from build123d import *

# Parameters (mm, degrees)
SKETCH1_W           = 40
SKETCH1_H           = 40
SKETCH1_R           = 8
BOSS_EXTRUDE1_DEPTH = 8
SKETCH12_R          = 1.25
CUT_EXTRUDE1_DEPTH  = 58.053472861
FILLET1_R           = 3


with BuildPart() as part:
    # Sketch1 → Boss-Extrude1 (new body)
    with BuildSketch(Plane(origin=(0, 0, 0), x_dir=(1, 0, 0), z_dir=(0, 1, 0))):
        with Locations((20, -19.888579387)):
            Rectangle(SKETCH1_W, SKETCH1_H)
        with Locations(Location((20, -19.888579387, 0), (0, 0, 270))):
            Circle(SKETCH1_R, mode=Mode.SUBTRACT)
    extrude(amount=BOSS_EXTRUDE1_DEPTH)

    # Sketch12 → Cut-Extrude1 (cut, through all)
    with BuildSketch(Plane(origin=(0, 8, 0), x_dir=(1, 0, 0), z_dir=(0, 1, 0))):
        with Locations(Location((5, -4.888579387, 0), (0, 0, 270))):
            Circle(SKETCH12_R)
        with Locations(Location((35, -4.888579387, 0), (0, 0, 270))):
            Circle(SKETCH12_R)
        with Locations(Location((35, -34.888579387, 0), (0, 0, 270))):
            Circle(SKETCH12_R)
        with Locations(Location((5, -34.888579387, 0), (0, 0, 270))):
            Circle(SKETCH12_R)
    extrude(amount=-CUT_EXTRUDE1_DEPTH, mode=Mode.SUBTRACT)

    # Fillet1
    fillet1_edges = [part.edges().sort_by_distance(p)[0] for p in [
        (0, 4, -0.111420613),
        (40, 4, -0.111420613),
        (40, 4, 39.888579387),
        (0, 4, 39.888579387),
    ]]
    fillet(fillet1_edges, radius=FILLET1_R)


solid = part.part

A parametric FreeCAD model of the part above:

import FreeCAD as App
import Part
import Sketcher

V = App.Vector


def edges_at(feature, points):
    """Names of the edges that pass closest to the given points."""
    edges = feature.Shape.Edges
    near = lambda p: min(range(len(edges)), key=lambda i: edges[i].distToShape(Part.Vertex(*p))[0])
    return sorted({f"Edge{near(p) + 1}" for p in points})


def add_polygon(sketch, points):
    """Adds a closed chain of lines whose ends are joined by coincident constraints."""
    first, n = sketch.GeometryCount, len(points)
    for a, b in zip(points, points[1:] + points[:1]):
        sketch.addGeometry(Part.LineSegment(App.Vector(*a, 0), App.Vector(*b, 0)), False)
    for i in range(n):
        sketch.addConstraint(Sketcher.Constraint("Coincident", first + i, 2, first + (i + 1) % n, 1))

doc = App.newDocument("Part")
body = doc.addObject("PartDesign::Body", "Body")

# Sketch on XZ plane
sketch1 = doc.addObject("Sketcher::SketchObject", "Sketch")
body.addObject(sketch1)
sketch1.AttachmentSupport = (doc.XZ_Plane, [""])
sketch1.MapMode = "FlatFace"
add_polygon(sketch1, [(0, 0), (0, 40), (40, 40), (40, 0)])  # lines 0-3
sketch1.addGeometry(Part.Circle(V(20, 20, 0), V(0, 0, 1), 8), False)  # 4
sketch1.addConstraint([
    Sketcher.Constraint("Vertical", 0),
    Sketcher.Constraint("Horizontal", 1),
    Sketcher.Constraint("Vertical", 2),
    Sketcher.Constraint("Horizontal", 3),
    Sketcher.Constraint("PointOnObject", 0, 2, -2),
    Sketcher.Constraint("Equal", 3, 0),
    Sketcher.Constraint("Diameter", 4, 16.0),
    Sketcher.Constraint("DistanceX", 1, 1, 1, 2, 40.0),
    Sketcher.Constraint("DistanceX", -1, 1, 4, 3, 20.0),
    Sketcher.Constraint("DistanceY", 4, 3, 0, 2, 20.0),
    Sketcher.Constraint("DistanceY", -1, 1, 4, 3, 19.888579),
])
pad1 = doc.addObject("PartDesign::Pad", "Pad")
body.addObject(pad1)
pad1.Profile = sketch1
pad1.Length = 8
pad1.Reversed = True

# Sketch on XZ plane
sketch2 = doc.addObject("Sketcher::SketchObject", "Sketch001")
body.addObject(sketch2)
sketch2.AttachmentSupport = (doc.XZ_Plane, [""])
sketch2.MapMode = "FlatFace"
sketch2.AttachmentOffset = App.Placement(V(0, 0, -8), App.Rotation())
sketch2.addGeometry([
    Part.Circle(V(5, 4.9, 0), V(0, 0, 1), 1.2),
    Part.Circle(V(35, 4.9, 0), V(0, 0, 1), 1.2),
    Part.Circle(V(35, 34.9, 0), V(0, 0, 1), 1.2),
    Part.Circle(V(5, 34.9, 0), V(0, 0, 1), 1.2),
], False)
sketch2.addConstraint([
    Sketcher.Constraint("Equal", 0, 1),
    Sketcher.Constraint("Equal", 1, 2),
    Sketcher.Constraint("Equal", 2, 3),
    Sketcher.Constraint("Horizontal", 0, 3, 1, 3),
    Sketcher.Constraint("Horizontal", 2, 3, 3, 3),
    Sketcher.Constraint("Vertical", 1, 3, 2, 3),
    Sketcher.Constraint("Vertical", 0, 3, 3, 3),
    Sketcher.Constraint("Diameter", 0, 2.5),
    Sketcher.Constraint("DistanceX", -1, 1, 0, 3, 5.0),
    Sketcher.Constraint("DistanceX", -1, 1, 1, 3, 35.0),
    Sketcher.Constraint("DistanceY", 1, 3, 2, 3, 30.0),
    Sketcher.Constraint("DistanceY", -1, 1, 0, 3, 4.888579),
])
pocket1 = doc.addObject("PartDesign::Pocket", "Pocket")
body.addObject(pocket1)
pocket1.Profile = sketch2
pocket1.Type = "ThroughAll"
pocket1.Reversed = True
doc.recompute()

fillet = doc.addObject("PartDesign::Fillet", "Fillet")
body.addObject(fillet)
fillet.Base = (pocket1, edges_at(pocket1, [
    (0, 4, -0.111),
    (40, 4, -0.111),
    (40, 4, 39.889),
    (0, 4, 39.889),
]))
fillet.Radius = 3

doc.recompute()
